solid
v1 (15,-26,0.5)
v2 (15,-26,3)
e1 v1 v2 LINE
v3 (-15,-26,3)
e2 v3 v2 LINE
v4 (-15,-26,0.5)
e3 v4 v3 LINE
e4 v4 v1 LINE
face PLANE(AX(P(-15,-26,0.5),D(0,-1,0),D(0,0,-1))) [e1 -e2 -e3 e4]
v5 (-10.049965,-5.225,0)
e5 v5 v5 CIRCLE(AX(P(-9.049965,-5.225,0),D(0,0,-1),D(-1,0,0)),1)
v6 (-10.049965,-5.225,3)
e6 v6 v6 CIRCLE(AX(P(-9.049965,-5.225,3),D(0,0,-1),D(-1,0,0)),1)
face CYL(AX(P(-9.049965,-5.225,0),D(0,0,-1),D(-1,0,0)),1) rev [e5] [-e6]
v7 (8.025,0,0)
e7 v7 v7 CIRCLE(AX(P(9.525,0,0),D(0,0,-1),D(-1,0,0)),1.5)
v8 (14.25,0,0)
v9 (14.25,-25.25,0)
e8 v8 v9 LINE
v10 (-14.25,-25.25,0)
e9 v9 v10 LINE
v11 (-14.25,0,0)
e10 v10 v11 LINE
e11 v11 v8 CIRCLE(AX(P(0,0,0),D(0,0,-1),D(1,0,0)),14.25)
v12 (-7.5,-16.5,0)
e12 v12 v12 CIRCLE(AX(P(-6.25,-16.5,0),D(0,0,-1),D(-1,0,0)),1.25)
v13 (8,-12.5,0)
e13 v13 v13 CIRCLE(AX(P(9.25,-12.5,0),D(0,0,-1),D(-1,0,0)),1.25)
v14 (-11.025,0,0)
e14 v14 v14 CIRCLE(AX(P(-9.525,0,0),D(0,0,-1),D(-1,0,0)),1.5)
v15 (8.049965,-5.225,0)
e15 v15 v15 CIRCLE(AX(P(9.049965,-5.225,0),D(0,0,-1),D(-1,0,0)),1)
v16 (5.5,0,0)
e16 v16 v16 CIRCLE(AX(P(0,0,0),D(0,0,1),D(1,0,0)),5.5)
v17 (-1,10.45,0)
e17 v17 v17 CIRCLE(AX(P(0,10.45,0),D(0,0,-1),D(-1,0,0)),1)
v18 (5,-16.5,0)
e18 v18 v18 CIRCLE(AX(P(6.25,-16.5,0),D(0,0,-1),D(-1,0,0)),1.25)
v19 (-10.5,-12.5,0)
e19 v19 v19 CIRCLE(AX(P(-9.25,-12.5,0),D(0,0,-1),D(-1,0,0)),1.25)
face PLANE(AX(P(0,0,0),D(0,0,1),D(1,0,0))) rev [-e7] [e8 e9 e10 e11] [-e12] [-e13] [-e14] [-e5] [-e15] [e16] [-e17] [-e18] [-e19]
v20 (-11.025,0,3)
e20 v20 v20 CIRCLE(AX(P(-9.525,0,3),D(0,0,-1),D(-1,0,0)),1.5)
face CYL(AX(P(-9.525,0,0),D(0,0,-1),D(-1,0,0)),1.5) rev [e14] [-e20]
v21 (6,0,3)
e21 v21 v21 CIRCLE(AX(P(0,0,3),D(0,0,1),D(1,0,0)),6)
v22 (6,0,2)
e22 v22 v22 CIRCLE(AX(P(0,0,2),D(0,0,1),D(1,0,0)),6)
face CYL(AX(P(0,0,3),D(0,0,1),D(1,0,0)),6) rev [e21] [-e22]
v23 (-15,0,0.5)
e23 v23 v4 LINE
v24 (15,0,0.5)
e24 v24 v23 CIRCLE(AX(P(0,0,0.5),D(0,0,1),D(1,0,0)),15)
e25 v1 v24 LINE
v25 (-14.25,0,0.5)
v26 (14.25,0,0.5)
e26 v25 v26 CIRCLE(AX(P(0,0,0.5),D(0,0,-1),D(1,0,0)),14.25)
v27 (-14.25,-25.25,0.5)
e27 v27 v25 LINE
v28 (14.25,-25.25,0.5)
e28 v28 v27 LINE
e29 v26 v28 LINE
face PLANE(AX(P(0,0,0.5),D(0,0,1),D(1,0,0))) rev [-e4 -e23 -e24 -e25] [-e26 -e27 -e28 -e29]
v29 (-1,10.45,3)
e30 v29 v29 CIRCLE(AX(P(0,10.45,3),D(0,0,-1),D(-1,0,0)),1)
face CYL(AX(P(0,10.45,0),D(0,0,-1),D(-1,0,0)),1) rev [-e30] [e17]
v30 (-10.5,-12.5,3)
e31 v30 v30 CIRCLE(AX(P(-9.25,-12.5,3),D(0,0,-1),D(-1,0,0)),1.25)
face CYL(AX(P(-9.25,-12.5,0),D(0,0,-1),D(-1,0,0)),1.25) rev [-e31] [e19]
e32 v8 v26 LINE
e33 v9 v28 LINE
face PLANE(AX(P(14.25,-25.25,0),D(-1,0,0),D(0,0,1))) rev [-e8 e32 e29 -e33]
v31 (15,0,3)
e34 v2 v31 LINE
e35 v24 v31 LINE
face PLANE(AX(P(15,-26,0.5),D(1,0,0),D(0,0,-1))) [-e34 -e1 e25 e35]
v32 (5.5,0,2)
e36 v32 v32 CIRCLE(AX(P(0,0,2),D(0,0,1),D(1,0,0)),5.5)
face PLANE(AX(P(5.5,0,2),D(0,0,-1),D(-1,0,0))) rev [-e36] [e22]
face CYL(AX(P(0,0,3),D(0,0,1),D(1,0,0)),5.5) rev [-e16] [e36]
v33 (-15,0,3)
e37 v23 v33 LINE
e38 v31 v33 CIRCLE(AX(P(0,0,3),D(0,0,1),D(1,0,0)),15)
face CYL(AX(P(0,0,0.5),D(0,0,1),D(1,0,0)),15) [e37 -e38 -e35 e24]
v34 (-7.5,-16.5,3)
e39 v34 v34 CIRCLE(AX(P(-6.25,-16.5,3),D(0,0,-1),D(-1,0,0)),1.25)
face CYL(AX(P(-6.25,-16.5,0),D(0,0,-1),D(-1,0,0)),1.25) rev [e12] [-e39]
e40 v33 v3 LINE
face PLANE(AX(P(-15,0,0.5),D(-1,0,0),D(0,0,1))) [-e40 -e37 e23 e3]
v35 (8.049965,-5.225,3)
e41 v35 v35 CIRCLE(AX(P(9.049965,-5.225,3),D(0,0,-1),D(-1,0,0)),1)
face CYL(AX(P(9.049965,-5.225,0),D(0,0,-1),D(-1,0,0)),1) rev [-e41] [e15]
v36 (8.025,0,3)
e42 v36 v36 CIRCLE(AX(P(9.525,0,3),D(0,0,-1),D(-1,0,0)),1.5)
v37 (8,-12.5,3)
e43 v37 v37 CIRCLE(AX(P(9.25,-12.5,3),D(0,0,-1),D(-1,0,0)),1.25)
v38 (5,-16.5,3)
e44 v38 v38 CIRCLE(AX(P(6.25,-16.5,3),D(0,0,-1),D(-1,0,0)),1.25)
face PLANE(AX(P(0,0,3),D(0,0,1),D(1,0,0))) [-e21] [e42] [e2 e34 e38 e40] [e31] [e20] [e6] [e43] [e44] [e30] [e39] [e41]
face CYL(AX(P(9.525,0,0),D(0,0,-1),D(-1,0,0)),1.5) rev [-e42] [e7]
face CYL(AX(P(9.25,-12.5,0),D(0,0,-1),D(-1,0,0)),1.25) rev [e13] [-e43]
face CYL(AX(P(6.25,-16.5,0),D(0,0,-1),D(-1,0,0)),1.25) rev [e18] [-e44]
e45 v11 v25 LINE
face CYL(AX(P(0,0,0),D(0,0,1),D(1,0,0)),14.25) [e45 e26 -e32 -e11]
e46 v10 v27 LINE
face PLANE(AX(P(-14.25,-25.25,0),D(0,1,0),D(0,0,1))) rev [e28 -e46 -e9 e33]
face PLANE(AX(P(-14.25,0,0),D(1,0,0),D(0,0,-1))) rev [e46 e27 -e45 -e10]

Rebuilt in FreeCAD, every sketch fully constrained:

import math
import FreeCAD as App
import Part
import Sketcher

V = App.Vector
Q = App.Units.Quantity

doc = App.newDocument("Part")
params = doc.addObject("Spreadsheet::Sheet", "Params")
for row, (alias, value) in enumerate([
    ("sketch1_radius", "15 mm"),
    ("sketch1_height", "26 mm"),
    ("pad1_length", "2.5 mm"),
    ("sketch2_radius", "14.25 mm"),
    ("sketch2_height", "25.25 mm"),
    ("pad2_length", "0.5 mm"),
    ("sketch3_diameter", "2.5 mm"),
    ("hole_diameter", "2.5 mm"),
    ("sketch4_diameter", "3 mm"),
    ("hole2_diameter", "3 mm"),
    ("sketch5_diameter", "2 mm"),
    ("hole3_diameter", "2 mm"),
    ("sketch6_diameter", "11 mm"),
    ("hole4_diameter", "11 mm"),
    ("hole4_cbore_diameter", "12 mm"),
    ("hole4_cbore_depth", "1 mm"),
], start=1):
    params.set(f"A{row}", alias)
    params.set(f"B{row}", "=" + value)
    params.setAlias(f"B{row}", alias)

body = doc.addObject("PartDesign::Body", "Body")

# Sketch on XY plane
sketch1 = body.newObject("Sketcher::SketchObject", "Sketch")
sketch1.AttachmentSupport = (doc.getObject("XY_Plane"), [""])
sketch1.MapMode = "FlatFace"
sketch1.AttachmentOffset = App.Placement(V(0, 0, 3), App.Rotation())
sketch1.addGeometry([
    Part.LineSegment(V(-15, 0, 0), V(-15, -26, 0)),
    Part.LineSegment(V(-15, -26, 0), V(15, -26, 0)),
    Part.LineSegment(V(15, -26, 0), V(15, 0, 0)),
    Part.ArcOfCircle(Part.Circle(V(0, 0, 0), V(0, 0, 1), 15), math.radians(0), math.radians(180)),
], False)
sketch1.addConstraint([
    Sketcher.Constraint("Coincident", 0, 2, 1, 1),
    Sketcher.Constraint("Coincident", 1, 2, 2, 1),
    Sketcher.Constraint("Tangent", 2, 2, 3, 1),
    Sketcher.Constraint("Tangent", 3, 2, 0, 1),
    Sketcher.Constraint("Vertical", 0),
    Sketcher.Constraint("Horizontal", 1),
    Sketcher.Constraint("Vertical", 2),
    Sketcher.Constraint("Coincident", 3, 3, -1, 1),
    Sketcher.Constraint("Radius", 3, Q("15 mm")),
    Sketcher.Constraint("DistanceY", 0, 2, 0, 1, Q("26 mm")),
])
sketch1.setExpression("Constraints[8]", "Params.sketch1_radius")
sketch1.setExpression("Constraints[9]", "Params.sketch1_height")
pad1 = body.newObject("PartDesign::Pad", "Pad")
pad1.Profile = sketch1
pad1.setExpression("Length", "Params.pad1_length")
pad1.Reversed = True

# Sketch on XY plane
sketch2 = body.newObject("Sketcher::SketchObject", "Sketch001")
sketch2.AttachmentSupport = (doc.getObject("XY_Plane"), [""])
sketch2.MapMode = "FlatFace"
sketch2.AttachmentOffset = App.Placement(V(0, 0, 0.5), App.Rotation())
sketch2.addGeometry([
    Part.LineSegment(V(14.25, 0, 0), V(14.25, -25.25, 0)),
    Part.LineSegment(V(14.25, -25.25, 0), V(-14.25, -25.25, 0)),
    Part.LineSegment(V(-14.25, -25.25, 0), V(-14.25, 0, 0)),
    Part.ArcOfCircle(Part.Circle(V(0, 0, 0), V(0, 0, 1), 14.25), math.radians(0), math.radians(180)),
], False)
sketch2.addConstraint([
    Sketcher.Constraint("Coincident", 0, 2, 1, 1),
    Sketcher.Constraint("Coincident", 1, 2, 2, 1),
    Sketcher.Constraint("Tangent", 2, 2, 3, 2),
    Sketcher.Constraint("Tangent", 3, 1, 0, 1),
    Sketcher.Constraint("Vertical", 0),
    Sketcher.Constraint("Horizontal", 1),
    Sketcher.Constraint("Vertical", 2),
    Sketcher.Constraint("Coincident", 3, 3, -1, 1),
    Sketcher.Constraint("Radius", 3, Q("14.25 mm")),
    Sketcher.Constraint("DistanceY", 0, 2, 0, 1, Q("25.25 mm")),
])
sketch2.setExpression("Constraints[8]", "Params.sketch2_radius")
sketch2.setExpression("Constraints[9]", "Params.sketch2_height")
pad2 = body.newObject("PartDesign::Pad", "Pad001")
pad2.Profile = sketch2
pad2.setExpression("Length", "Params.pad2_length")
pad2.Reversed = True

# Sketch on XY plane
sketch3 = body.newObject("Sketcher::SketchObject", "Sketch002")
sketch3.AttachmentSupport = (doc.getObject("XY_Plane"), [""])
sketch3.MapMode = "FlatFace"
sketch3.addGeometry([
    Part.Circle(V(-9.25, -12.5, 0), V(0, 0, 1), 1.25),
    Part.Circle(V(9.25, -12.5, 0), V(0, 0, 1), 1.25),
    Part.Circle(V(-6.25, -16.5, 0), V(0, 0, 1), 1.25),
    Part.Circle(V(6.25, -16.5, 0), V(0, 0, 1), 1.25),
], False)
sketch3.addConstraint([
    Sketcher.Constraint("Equal", 0, 1),
    Sketcher.Constraint("Equal", 1, 2),
    Sketcher.Constraint("Equal", 2, 3),
    Sketcher.Constraint("Symmetric", 0, 3, 1, 3, -2),
    Sketcher.Constraint("Symmetric", 2, 3, 3, 3, -2),
    Sketcher.Constraint("Diameter", 0, Q("2.5 mm")),
    Sketcher.Constraint("DistanceX", 0, 3, 2, 3, Q("3 mm")),
    Sketcher.Constraint("DistanceY", 2, 3, 0, 3, Q("4 mm")),
    Sketcher.Constraint("DistanceY", 0, 3, -1, 1, Q("12.5 mm")),
    Sketcher.Constraint("DistanceX", 0, 3, 1, 3, Q("18.5 mm")),
])
sketch3.setExpression("Constraints[5]", "Params.sketch3_diameter")
doc.recompute()
hole = body.newObject("PartDesign::Hole", "Hole")
hole.Profile = sketch3
hole.ThreadType = "None"
hole.setExpression("Diameter", "Params.hole_diameter")
hole.DepthType = "ThroughAll"
hole.Reversed = True

# Sketch on XY plane
sketch4 = body.newObject("Sketcher::SketchObject", "Sketch003")
sketch4.AttachmentSupport = (doc.getObject("XY_Plane"), [""])
sketch4.MapMode = "FlatFace"
sketch4.addGeometry([
    Part.Circle(V(9.525, 0, 0), V(0, 0, 1), 1.5),
    Part.Circle(V(-9.525, 0, 0), V(0, 0, 1), 1.5),
], False)
sketch4.addConstraint([
    Sketcher.Constraint("Equal", 0, 1),
    Sketcher.Constraint("Symmetric", 0, 3, 1, 3, -1, 1),
    Sketcher.Constraint("PointOnObject", 0, 3, -1),
    Sketcher.Constraint("Diameter", 0, Q("3 mm")),
    Sketcher.Constraint("DistanceX", 1, 3, 0, 3, Q("19.05 mm")),
])
sketch4.setExpression("Constraints[3]", "Params.sketch4_diameter")
doc.recompute()
hole2 = body.newObject("PartDesign::Hole", "Hole001")
hole2.Profile = sketch4
hole2.ThreadType = "None"
hole2.setExpression("Diameter", "Params.hole2_diameter")
hole2.DepthType = "ThroughAll"
hole2.Reversed = True

# Sketch on XY plane
sketch5 = body.newObject("Sketcher::SketchObject", "Sketch004")
sketch5.AttachmentSupport = (doc.getObject("XY_Plane"), [""])
sketch5.MapMode = "FlatFace"
sketch5.addGeometry([
    Part.Circle(V(0, 10.45, 0), V(0, 0, 1), 1),
    Part.Circle(V(-9.049965, -5.225, 0), V(0, 0, 1), 1),
    Part.Circle(V(9.049965, -5.225, 0), V(0, 0, 1), 1),
], False)
sketch5.addConstraint([
    Sketcher.Constraint("Equal", 0, 1),
    Sketcher.Constraint("Equal", 1, 2),
    Sketcher.Constraint("Symmetric", 1, 3, 2, 3, -2),
    Sketcher.Constraint("PointOnObject", 0, 3, -2),
    Sketcher.Constraint("Diameter", 0, Q("2 mm")),
    Sketcher.Constraint("DistanceY", -1, 1, 0, 3, Q("10.45 mm")),
    Sketcher.Constraint("DistanceY", 1, 3, -1, 1, Q("5.225 mm")),
    Sketcher.Constraint("DistanceX", 1, 3, 2, 3, Q("18.099931 mm")),
])
sketch5.setExpression("Constraints[4]", "Params.sketch5_diameter")
doc.recompute()
hole3 = body.newObject("PartDesign::Hole", "Hole002")
hole3.Profile = sketch5
hole3.ThreadType = "None"
hole3.setExpression("Diameter", "Params.hole3_diameter")
hole3.DepthType = "ThroughAll"
hole3.Reversed = True

# Sketch on XY plane
sketch6 = body.newObject("Sketcher::SketchObject", "Sketch005")
sketch6.AttachmentSupport = (doc.getObject("XY_Plane"), [""])
sketch6.MapMode = "FlatFace"
sketch6.AttachmentOffset = App.Placement(V(0, 0, 3), App.Rotation())
sketch6.addGeometry(Part.Circle(V(0, 0, 0), V(0, 0, 1), 5.5), False)
sketch6.addConstraint([
    Sketcher.Constraint("Coincident", 0, 3, -1, 1),
    Sketcher.Constraint("Diameter", 0, Q("11 mm")),
])
sketch6.setExpression("Constraints[1]", "Params.sketch6_diameter")
doc.recompute()
hole4 = body.newObject("PartDesign::Hole", "Hole003")
hole4.Profile = sketch6
hole4.ThreadType = "None"
hole4.setExpression("Diameter", "Params.hole4_diameter")
hole4.DepthType = "ThroughAll"
hole4.HoleCutType = "Counterbore"
hole4.setExpression("HoleCutDiameter", "Params.hole4_cbore_diameter")
hole4.setExpression("HoleCutDepth", "Params.hole4_cbore_depth")

doc.recompute()
